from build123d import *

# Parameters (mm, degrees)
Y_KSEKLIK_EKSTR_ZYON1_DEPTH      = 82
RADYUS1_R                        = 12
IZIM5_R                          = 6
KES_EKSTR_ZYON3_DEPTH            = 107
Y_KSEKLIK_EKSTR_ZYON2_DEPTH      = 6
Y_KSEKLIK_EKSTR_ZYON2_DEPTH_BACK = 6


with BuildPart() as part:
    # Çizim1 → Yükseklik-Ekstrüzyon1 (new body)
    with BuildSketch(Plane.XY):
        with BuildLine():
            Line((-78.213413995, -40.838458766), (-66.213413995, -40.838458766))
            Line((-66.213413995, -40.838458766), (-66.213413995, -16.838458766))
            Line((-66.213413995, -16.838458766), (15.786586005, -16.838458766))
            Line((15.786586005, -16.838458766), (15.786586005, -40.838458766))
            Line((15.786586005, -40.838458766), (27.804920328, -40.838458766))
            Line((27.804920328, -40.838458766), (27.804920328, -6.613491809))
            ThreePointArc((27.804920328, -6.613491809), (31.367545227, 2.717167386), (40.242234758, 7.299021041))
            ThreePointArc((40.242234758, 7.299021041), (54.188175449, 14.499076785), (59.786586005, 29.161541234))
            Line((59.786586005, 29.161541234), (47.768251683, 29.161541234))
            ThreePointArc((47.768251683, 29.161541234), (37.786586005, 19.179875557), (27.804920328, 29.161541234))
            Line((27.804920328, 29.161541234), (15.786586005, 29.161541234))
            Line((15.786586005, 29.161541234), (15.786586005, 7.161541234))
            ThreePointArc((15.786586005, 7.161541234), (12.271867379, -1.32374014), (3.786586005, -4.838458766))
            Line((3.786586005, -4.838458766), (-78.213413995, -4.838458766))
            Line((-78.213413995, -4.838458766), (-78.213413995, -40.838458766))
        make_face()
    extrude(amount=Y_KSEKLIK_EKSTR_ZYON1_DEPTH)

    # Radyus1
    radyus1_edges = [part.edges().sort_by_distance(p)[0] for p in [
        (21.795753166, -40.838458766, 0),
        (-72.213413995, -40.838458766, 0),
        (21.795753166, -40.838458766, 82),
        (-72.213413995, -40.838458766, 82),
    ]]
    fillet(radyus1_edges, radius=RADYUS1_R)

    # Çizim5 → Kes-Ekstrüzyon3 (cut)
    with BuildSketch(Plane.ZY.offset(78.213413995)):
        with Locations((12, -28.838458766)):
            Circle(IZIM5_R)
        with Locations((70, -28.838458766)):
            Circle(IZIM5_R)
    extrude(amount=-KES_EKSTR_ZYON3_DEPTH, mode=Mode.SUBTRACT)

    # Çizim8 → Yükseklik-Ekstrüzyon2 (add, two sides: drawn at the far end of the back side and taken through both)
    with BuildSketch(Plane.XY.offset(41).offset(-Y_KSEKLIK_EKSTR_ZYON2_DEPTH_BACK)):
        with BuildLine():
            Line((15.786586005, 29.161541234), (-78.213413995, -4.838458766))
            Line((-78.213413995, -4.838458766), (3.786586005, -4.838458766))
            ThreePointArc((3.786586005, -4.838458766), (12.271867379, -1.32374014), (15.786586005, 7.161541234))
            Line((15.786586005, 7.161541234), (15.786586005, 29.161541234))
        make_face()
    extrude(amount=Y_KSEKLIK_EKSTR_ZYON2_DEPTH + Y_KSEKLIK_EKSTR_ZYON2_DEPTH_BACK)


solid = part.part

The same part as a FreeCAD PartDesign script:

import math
import FreeCAD as App
import Part
import Sketcher
from FreeCAD import Vector


def edges_at(feature, points):
    """Names of the edges that pass closest to the given points."""
    edges = feature.Shape.Edges
    near = lambda p: min(range(len(edges)), key=lambda i: edges[i].distToShape(Part.Vertex(*p))[0])
    return sorted({f"Edge{near(p) + 1}" for p in points})

doc = App.newDocument("Part")
params = doc.addObject("Spreadsheet::Sheet", "Params")
for row, (alias, value) in enumerate([
    ("sketch1_radius", "14 mm"),
    ("sketch1_radius2", "22 mm"),
    ("sketch1_radius3", "12 mm"),
    ("sketch1_width", "82 mm"),
    ("sketch1_height", "24 mm"),
    ("pad1_length", "82 mm"),
    ("fillet_radius", "12 mm"),
    ("sketch2_diameter", "12 mm"),
    ("pocket1_length", "107 mm"),
    ("sketch3_radius", "12 mm"),
    ("sketch3_width", "82 mm"),
    ("sketch3_height", "22 mm"),
    ("pad2_length", "6 mm"),
    ("pad2_length2", "6 mm"),
], start=1):
    params.set(f"A{row}", alias)
    params.set(f"B{row}", "=" + value)
    params.setAlias(f"B{row}", alias)

body = doc.addObject("PartDesign::Body", "Body")

sketch1 = body.newObject("Sketcher::SketchObject", "Sketch")
sketch1.AttachmentSupport = (doc.getObject("XY_Plane"), [""])
sketch1.MapMode = "FlatFace"
sketch1.addGeometry(Part.LineSegment(Vector(-78.213414, -40.838459, 0), Vector(-66.213414, -40.838459, 0)), False)
sketch1.addGeometry(Part.LineSegment(Vector(-66.213414, -40.838459, 0), Vector(-66.213414, -16.838459, 0)), False)
sketch1.addGeometry(Part.LineSegment(Vector(-66.213414, -16.838459, 0), Vector(15.786586, -16.838459, 0)), False)
sketch1.addGeometry(Part.LineSegment(Vector(15.786586, -16.838459, 0), Vector(15.786586, -40.838459, 0)), False)
sketch1.addGeometry(Part.LineSegment(Vector(15.786586, -40.838459, 0), Vector(27.80492, -40.838459, 0)), False)
sketch1.addGeometry(Part.LineSegment(Vector(27.80492, -40.838459, 0), Vector(27.80492, -6.613492, 0)), False)
sketch1.addGeometry(Part.ArcOfCircle(Part.Circle(Vector(41.80492, -6.613492, 0), Vector(0, 0, 1), 14), math.radians(96.408733), math.radians(180)), False)
sketch1.addGeometry(Part.ArcOfCircle(Part.Circle(Vector(37.786586, 29.161541, 0), Vector(0, 0, 1), 22), math.radians(-83.591267), math.radians(0)), False)
sketch1.addGeometry(Part.LineSegment(Vector(59.786586, 29.161541, 0), Vector(47.768252, 29.161541, 0)), False)
sketch1.addGeometry(Part.ArcOfCircle(Part.Circle(Vector(37.786586, 29.161541, 0), Vector(0, 0, 1), 9.981666), math.radians(180), math.radians(360)), False)
sketch1.addGeometry(Part.LineSegment(Vector(27.80492, 29.161541, 0), Vector(15.786586, 29.161541, 0)), False)
sketch1.addGeometry(Part.LineSegment(Vector(15.786586, 29.161541, 0), Vector(15.786586, 7.161541, 0)), False)
sketch1.addGeometry(Part.ArcOfCircle(Part.Circle(Vector(3.786586, 7.161541, 0), Vector(0, 0, 1), 12), math.radians(-90), math.radians(0)), False)
sketch1.addGeometry(Part.LineSegment(Vector(3.786586, -4.838459, 0), Vector(-78.213414, -4.838459, 0)), False)
sketch1.addGeometry(Part.LineSegment(Vector(-78.213414, -4.838459, 0), Vector(-78.213414, -40.838459, 0)), False)
sketch1.addConstraint(Sketcher.Constraint("Coincident", 0, 2, 1, 1))
sketch1.addConstraint(Sketcher.Constraint("Coincident", 1, 2, 2, 1))
sketch1.addConstraint(Sketcher.Constraint("Coincident", 2, 2, 3, 1))
sketch1.addConstraint(Sketcher.Constraint("Coincident", 3, 2, 4, 1))
sketch1.addConstraint(Sketcher.Constraint("Coincident", 4, 2, 5, 1))
sketch1.addConstraint(Sketcher.Constraint("Tangent", 5, 2, 6, 2))
sketch1.addConstraint(Sketcher.Constraint("Tangent", 6, 1, 7, 1))
sketch1.addConstraint(Sketcher.Constraint("Coincident", 7, 2, 8, 1))
sketch1.addConstraint(Sketcher.Constraint("Coincident", 8, 2, 9, 2))
sketch1.addConstraint(Sketcher.Constraint("Coincident", 9, 1, 10, 1))
sketch1.addConstraint(Sketcher.Constraint("Coincident", 10, 2, 11, 1))
sketch1.addConstraint(Sketcher.Constraint("Tangent", 11, 2, 12, 2))
sketch1.addConstraint(Sketcher.Constraint("Tangent", 12, 1, 13, 1))
sketch1.addConstraint(Sketcher.Constraint("Coincident", 13, 2, 14, 1))
sketch1.addConstraint(Sketcher.Constraint("Coincident", 14, 2, 0, 1))
sketch1.addConstraint(Sketcher.Constraint("Horizontal", 0))
sketch1.addConstraint(Sketcher.Constraint("Vertical", 1))
sketch1.addConstraint(Sketcher.Constraint("Horizontal", 2))
sketch1.addConstraint(Sketcher.Constraint("Vertical", 3))
sketch1.addConstraint(Sketcher.Constraint("Horizontal", 4))
sketch1.addConstraint(Sketcher.Constraint("Vertical", 5))
sketch1.addConstraint(Sketcher.Constraint("Horizontal", 8))
sketch1.addConstraint(Sketcher.Constraint("Horizontal", 10))
sketch1.addConstraint(Sketcher.Constraint("Vertical", 11))
sketch1.addConstraint(Sketcher.Constraint("Horizontal", 13))
sketch1.addConstraint(Sketcher.Constraint("Vertical", 14))
sketch1.addConstraint(Sketcher.Constraint("Coincident", 9, 3, 7, 3))
sketch1.addConstraint(Sketcher.Constraint("Horizontal", 0, 2, 3, 2))
sketch1.addConstraint(Sketcher.Constraint("Horizontal", 9, 3, 7, 2))
sketch1.addConstraint(Sketcher.Constraint("Horizontal", 8, 2, 9, 1))
sketch1.addConstraint(Sketcher.Constraint("Vertical", 5, 2, 9, 1))
sketch1.addConstraint(Sketcher.Constraint("Vertical", 3, 2, 10, 2))
sketch1.addConstraint(Sketcher.Constraint("Equal", 4, 8))
sketch1.addConstraint(Sketcher.Constraint("Equal", 2, 13))
sketch1.addConstraint(Sketcher.Constraint("Radius", 6, 14.0))
sketch1.addConstraint(Sketcher.Constraint("Radius", 7, 22.0))
sketch1.addConstraint(Sketcher.Constraint("Radius", 12, 12.0))
sketch1.addConstraint(Sketcher.Constraint("DistanceX", 2, 1, 2, 2, 82.0))
sketch1.addConstraint(Sketcher.Constraint("DistanceY", 1, 1, 1, 2, 24.0))
sketch1.addConstraint(Sketcher.Constraint("DistanceY", 11, 2, 11, 1, 22.0))
sketch1.addConstraint(Sketcher.Constraint("DistanceY", 14, 2, 14, 1, 36.0))
sketch1.addConstraint(Sketcher.Constraint("Radius", 9, 9.981666))
sketch1.addConstraint(Sketcher.Constraint("DistanceX", -1, 1, 6, 3, 41.80492))
sketch1.addConstraint(Sketcher.Constraint("DistanceY", 6, 3, -1, 1, 6.613492))
sketch1.setExpression("Constraints[34]", "Params.sketch1_radius")
sketch1.setExpression("Constraints[35]", "Params.sketch1_radius2")
sketch1.setExpression("Constraints[36]", "Params.sketch1_radius3")
sketch1.setExpression("Constraints[37]", "Params.sketch1_width")
sketch1.setExpression("Constraints[38]", "Params.sketch1_height")
pad1 = body.newObject("PartDesign::Pad", "Pad")
pad1.Profile = sketch1
pad1.setExpression("Length", "Params.pad1_length")
doc.recompute()

fillet = body.newObject("PartDesign::Fillet", "Fillet")
fillet.Base = (pad1, edges_at(pad1, [
    (21.796, -40.838, 0),
    (-72.213, -40.838, 0),
    (21.796, -40.838, 82),
    (-72.213, -40.838, 82),
]))
fillet.setExpression("Radius", "Params.fillet_radius")

sketch2 = body.newObject("Sketcher::SketchObject", "Sketch001")
sketch2.AttachmentSupport = (doc.getObject("YZ_Plane"), [""])
sketch2.MapMode = "FlatFace"
sketch2.AttachmentOffset = App.Placement(Vector(0, 0, -78.213414), App.Rotation())
sketch2.addGeometry(Part.Circle(Vector(-28.838459, 12, 0), Vector(0, 0, 1), 6), False)
sketch2.addGeometry(Part.Circle(Vector(-28.838459, 70, 0), Vector(0, 0, 1), 6), False)
sketch2.addConstraint(Sketcher.Constraint("Equal", 0, 1))
sketch2.addConstraint(Sketcher.Constraint("Vertical", 0, 3, 1, 3))
sketch2.addConstraint(Sketcher.Constraint("Diameter", 0, 12.0))
sketch2.addConstraint(Sketcher.Constraint("DistanceY", -1, 1, 0, 3, 12.0))
sketch2.addConstraint(Sketcher.Constraint("DistanceY", -1, 1, 1, 3, 70.0))
sketch2.addConstraint(Sketcher.Constraint("DistanceX", 0, 3, -1, 1, 28.838459))
sketch2.setExpression("Constraints[2]", "Params.sketch2_diameter")
pocket1 = body.newObject("PartDesign::Pocket", "Pocket")
pocket1.Profile = sketch2
pocket1.setExpression("Length", "Params.pocket1_length")
pocket1.Reversed = True

sketch3 = body.newObject("Sketcher::SketchObject", "Sketch002")
sketch3.AttachmentSupport = (doc.getObject("XY_Plane"), [""])
sketch3.MapMode = "FlatFace"
sketch3.AttachmentOffset = App.Placement(Vector(0, 0, 41), App.Rotation())
sketch3.addGeometry(Part.LineSegment(Vector(15.786586, 29.161541, 0), Vector(-78.213414, -4.838459, 0)), False)
sketch3.addGeometry(Part.LineSegment(Vector(-78.213414, -4.838459, 0), Vector(3.786586, -4.838459, 0)), False)
sketch3.addGeometry(Part.ArcOfCircle(Part.Circle(Vector(3.786586, 7.161541, 0), Vector(0, 0, 1), 12), math.radians(-90), math.radians(0)), False)
sketch3.addGeometry(Part.LineSegment(Vector(15.786586, 7.161541, 0), Vector(15.786586, 29.161541, 0)), False)
sketch3.addConstraint(Sketcher.Constraint("Coincident", 0, 2, 1, 1))
sketch3.addConstraint(Sketcher.Constraint("Tangent", 1, 2, 2, 1))
sketch3.addConstraint(Sketcher.Constraint("Tangent", 2, 2, 3, 1))
sketch3.addConstraint(Sketcher.Constraint("Coincident", 3, 2, 0, 1))
sketch3.addConstraint(Sketcher.Constraint("Horizontal", 1))
sketch3.addConstraint(Sketcher.Constraint("Vertical", 3))
sketch3.addConstraint(Sketcher.Constraint("Radius", 2, 12.0))
sketch3.addConstraint(Sketcher.Constraint("DistanceX", 1, 1, 1, 2, 82.0))
sketch3.addConstraint(Sketcher.Constraint("DistanceY", 3, 1, 3, 2, 22.0))
sketch3.addConstraint(Sketcher.Constraint("DistanceY", -1, 1, 2, 3, 7.161541))
sketch3.addConstraint(Sketcher.Constraint("DistanceX", -1, 1, 2, 3, 3.786586))
sketch3.setExpression("Constraints[6]", "Params.sketch3_radius")
sketch3.setExpression("Constraints[7]", "Params.sketch3_width")
sketch3.setExpression("Constraints[8]", "Params.sketch3_height")
pad2 = body.newObject("PartDesign::Pad", "Pad001")
pad2.Profile = sketch3
pad2.Type = "TwoLengths"
pad2.setExpression("Length", "Params.pad2_length")
pad2.setExpression("Length2", "Params.pad2_length2")

doc.recompute()
